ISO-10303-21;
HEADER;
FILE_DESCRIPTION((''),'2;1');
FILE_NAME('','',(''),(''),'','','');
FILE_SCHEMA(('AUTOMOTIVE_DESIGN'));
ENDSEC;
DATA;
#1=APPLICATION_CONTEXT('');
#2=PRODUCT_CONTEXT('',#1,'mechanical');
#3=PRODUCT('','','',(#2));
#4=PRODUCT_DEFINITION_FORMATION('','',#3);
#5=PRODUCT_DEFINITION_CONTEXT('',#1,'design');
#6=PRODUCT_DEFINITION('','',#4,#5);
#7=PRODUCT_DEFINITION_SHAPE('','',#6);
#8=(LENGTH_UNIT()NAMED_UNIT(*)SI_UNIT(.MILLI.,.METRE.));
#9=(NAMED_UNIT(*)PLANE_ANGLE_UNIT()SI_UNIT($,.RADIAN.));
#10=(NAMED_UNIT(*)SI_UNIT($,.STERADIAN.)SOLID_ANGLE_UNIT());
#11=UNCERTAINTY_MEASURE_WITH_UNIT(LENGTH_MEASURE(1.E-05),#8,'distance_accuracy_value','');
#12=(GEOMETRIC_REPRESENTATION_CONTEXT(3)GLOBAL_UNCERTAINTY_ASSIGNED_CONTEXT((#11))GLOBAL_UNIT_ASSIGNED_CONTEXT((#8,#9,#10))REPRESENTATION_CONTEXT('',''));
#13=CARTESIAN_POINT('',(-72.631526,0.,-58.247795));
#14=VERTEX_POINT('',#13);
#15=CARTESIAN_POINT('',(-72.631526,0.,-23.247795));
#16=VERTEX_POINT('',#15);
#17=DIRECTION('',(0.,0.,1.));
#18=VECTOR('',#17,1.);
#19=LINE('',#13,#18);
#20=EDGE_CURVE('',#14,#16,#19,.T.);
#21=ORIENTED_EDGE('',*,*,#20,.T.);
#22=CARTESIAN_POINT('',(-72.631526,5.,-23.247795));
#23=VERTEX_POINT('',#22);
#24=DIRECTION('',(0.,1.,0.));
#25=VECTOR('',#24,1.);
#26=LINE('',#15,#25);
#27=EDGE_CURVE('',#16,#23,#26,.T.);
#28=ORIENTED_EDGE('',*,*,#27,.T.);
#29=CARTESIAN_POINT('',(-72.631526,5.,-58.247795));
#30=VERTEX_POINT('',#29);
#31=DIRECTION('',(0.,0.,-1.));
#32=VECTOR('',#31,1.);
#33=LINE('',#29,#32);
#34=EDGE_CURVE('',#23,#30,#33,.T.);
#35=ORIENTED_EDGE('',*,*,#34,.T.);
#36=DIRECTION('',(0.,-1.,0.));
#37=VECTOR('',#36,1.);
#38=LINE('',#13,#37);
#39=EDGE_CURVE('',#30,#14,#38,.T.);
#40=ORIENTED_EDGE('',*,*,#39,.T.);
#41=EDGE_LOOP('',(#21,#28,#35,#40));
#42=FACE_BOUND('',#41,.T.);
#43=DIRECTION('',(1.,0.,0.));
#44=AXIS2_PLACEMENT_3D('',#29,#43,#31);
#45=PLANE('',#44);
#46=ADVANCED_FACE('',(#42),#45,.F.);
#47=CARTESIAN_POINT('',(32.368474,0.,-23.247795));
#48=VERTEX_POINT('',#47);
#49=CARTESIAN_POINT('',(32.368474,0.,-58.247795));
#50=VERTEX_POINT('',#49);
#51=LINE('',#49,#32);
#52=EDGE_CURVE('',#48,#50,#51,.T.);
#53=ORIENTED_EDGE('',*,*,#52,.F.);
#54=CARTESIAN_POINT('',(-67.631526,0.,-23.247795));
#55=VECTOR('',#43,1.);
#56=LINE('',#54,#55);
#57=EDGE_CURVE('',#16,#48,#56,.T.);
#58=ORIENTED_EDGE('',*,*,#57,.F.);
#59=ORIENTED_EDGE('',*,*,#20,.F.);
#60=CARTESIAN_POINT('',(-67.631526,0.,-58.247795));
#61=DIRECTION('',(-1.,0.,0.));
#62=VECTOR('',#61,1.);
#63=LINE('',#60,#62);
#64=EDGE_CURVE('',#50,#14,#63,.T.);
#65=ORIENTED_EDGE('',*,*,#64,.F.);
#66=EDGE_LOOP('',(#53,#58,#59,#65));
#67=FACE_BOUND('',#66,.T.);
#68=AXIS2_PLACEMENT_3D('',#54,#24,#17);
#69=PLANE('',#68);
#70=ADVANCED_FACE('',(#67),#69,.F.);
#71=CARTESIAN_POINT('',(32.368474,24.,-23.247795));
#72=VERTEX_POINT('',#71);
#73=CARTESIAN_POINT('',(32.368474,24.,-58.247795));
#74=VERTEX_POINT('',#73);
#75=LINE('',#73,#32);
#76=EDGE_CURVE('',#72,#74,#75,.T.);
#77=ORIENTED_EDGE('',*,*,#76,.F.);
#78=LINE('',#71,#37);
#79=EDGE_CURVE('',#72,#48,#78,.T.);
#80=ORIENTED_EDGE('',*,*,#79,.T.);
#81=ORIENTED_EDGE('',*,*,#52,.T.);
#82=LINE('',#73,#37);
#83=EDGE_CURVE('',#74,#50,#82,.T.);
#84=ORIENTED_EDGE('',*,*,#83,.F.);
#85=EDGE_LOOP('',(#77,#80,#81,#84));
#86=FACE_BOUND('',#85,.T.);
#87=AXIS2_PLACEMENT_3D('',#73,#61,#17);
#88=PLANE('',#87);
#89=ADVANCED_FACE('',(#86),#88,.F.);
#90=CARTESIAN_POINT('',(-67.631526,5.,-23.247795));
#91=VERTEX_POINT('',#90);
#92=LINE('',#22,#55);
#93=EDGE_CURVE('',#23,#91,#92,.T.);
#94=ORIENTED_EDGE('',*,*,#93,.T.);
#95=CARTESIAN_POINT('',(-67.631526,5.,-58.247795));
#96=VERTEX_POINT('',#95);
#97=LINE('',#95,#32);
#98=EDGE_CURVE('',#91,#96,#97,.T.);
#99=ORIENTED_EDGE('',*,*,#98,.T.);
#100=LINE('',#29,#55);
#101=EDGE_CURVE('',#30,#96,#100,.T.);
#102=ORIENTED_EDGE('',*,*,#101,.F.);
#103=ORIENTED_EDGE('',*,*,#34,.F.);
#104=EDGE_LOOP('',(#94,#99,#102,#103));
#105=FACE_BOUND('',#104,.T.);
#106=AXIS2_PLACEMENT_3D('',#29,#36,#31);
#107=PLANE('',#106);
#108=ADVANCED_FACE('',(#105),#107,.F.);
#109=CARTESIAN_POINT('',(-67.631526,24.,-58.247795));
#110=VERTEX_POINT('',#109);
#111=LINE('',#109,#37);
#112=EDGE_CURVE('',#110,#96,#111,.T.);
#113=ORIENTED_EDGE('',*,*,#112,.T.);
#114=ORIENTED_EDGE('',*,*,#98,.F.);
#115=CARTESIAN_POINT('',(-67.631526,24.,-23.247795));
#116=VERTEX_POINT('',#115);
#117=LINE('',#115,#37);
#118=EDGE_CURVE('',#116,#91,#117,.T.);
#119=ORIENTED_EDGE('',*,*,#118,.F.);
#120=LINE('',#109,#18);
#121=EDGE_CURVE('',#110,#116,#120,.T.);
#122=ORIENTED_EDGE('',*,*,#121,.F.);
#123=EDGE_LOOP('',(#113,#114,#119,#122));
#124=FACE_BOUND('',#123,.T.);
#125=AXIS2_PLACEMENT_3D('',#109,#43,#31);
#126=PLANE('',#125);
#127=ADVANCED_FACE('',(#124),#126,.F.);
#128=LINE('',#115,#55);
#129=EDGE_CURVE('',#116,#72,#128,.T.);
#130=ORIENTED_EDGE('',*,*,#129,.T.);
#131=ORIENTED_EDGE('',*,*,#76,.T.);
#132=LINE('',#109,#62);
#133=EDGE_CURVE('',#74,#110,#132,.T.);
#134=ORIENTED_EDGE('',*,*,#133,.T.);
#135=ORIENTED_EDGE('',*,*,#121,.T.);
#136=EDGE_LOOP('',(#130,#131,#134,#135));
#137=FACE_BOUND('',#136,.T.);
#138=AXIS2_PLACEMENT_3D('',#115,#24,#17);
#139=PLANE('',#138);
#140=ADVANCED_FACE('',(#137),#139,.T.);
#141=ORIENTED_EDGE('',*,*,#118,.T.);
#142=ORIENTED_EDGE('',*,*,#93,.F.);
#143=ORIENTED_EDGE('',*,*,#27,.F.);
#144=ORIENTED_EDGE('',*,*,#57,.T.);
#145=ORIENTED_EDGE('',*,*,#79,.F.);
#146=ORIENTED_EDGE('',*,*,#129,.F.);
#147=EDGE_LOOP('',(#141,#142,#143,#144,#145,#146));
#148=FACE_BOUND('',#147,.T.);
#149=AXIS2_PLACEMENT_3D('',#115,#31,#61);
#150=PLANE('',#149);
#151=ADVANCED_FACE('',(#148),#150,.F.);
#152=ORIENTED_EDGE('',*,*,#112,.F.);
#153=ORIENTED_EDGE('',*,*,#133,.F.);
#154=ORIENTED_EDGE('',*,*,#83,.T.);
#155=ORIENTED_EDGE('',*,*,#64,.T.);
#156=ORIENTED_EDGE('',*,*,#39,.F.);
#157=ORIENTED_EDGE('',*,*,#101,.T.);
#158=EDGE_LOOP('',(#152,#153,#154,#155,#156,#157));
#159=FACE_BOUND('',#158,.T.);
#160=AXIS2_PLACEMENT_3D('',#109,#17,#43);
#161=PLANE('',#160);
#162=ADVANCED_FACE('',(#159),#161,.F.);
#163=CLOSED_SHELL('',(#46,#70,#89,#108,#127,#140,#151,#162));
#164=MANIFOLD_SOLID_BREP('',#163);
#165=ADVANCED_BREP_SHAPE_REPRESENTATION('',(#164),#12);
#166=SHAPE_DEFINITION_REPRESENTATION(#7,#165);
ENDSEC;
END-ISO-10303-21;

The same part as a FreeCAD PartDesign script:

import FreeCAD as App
import Part
import Sketcher
from FreeCAD import Vector

doc = App.newDocument("Part")
body = doc.addObject("PartDesign::Body", "Body")

# Sketch on XZ plane
sketch1 = doc.addObject("Sketcher::SketchObject", "Sketch")
body.addObject(sketch1)
sketch1.AttachmentSupport = (doc.XZ_Plane, [""])
sketch1.MapMode = "FlatFace"
sketch1.addGeometry([
    Part.LineSegment(Vector(-68, -58, 0), Vector(-68, -23, 0)),
    Part.LineSegment(Vector(-68, -23, 0), Vector(32, -23, 0)),
    Part.LineSegment(Vector(32, -23, 0), Vector(32, -58, 0)),
    Part.LineSegment(Vector(32, -58, 0), Vector(-68, -58, 0)),
], False)
sketch1.addConstraint([
    Sketcher.Constraint("Coincident", 0, 2, 1, 1),
    Sketcher.Constraint("Coincident", 1, 2, 2, 1),
    Sketcher.Constraint("Coincident", 2, 2, 3, 1),
    Sketcher.Constraint("Coincident", 3, 2, 0, 1),
    Sketcher.Constraint("Vertical", 0),
    Sketcher.Constraint("Horizontal", 1),
    Sketcher.Constraint("Vertical", 2),
    Sketcher.Constraint("Horizontal", 3),
    Sketcher.Constraint("DistanceX", 1, 1, 1, 2, 100.0),
    Sketcher.Constraint("DistanceY", 0, 1, 0, 2, 35.0),
    Sketcher.Constraint("DistanceX", 0, 2, -1, 1, 67.631526),
    Sketcher.Constraint("DistanceY", 0, 2, -1, 1, 23.247795),
])
pad1 = doc.addObject("PartDesign::Pad", "Pad")
body.addObject(pad1)
pad1.Profile = sketch1
pad1.Length = 24
pad1.Reversed = True

# Sketch on YZ plane
sketch2 = doc.addObject("Sketcher::SketchObject", "Sketch001")
body.addObject(sketch2)
sketch2.AttachmentSupport = (doc.YZ_Plane, [""])
sketch2.MapMode = "FlatFace"
sketch2.AttachmentOffset = App.Placement(Vector(0, 0, -67.631526), App.Rotation())
sketch2.addGeometry([
    Part.LineSegment(Vector(5, -58, 0), Vector(0, -58, 0)),
    Part.LineSegment(Vector(0, -58, 0), Vector(0, -23, 0)),
    Part.LineSegment(Vector(0, -23, 0), Vector(5, -23, 0)),
    Part.LineSegment(Vector(5, -23, 0), Vector(5, -58, 0)),
], False)
sketch2.addConstraint([
    Sketcher.Constraint("Coincident", 0, 2, 1, 1),
    Sketcher.Constraint("Coincident", 1, 2, 2, 1),
    Sketcher.Constraint("Coincident", 2, 2, 3, 1),
    Sketcher.Constraint("Coincident", 3, 2, 0, 1),
    Sketcher.Constraint("Horizontal", 0),
    Sketcher.Constraint("Vertical", 1),
    Sketcher.Constraint("Horizontal", 2),
    Sketcher.Constraint("Vertical", 3),
    Sketcher.Constraint("PointOnObject", 0, 2, -2),
    Sketcher.Constraint("DistanceX", 0, 2, 0, 1, 5.0),
    Sketcher.Constraint("DistanceY", 1, 1, 1, 2, 35.0),
    Sketcher.Constraint("DistanceY", 0, 2, -1, 1, 58.247795),
])
pad2 = doc.addObject("PartDesign::Pad", "Pad001")
body.addObject(pad2)
pad2.Profile = sketch2
pad2.Length = 5
pad2.Reversed = True

doc.recompute()
